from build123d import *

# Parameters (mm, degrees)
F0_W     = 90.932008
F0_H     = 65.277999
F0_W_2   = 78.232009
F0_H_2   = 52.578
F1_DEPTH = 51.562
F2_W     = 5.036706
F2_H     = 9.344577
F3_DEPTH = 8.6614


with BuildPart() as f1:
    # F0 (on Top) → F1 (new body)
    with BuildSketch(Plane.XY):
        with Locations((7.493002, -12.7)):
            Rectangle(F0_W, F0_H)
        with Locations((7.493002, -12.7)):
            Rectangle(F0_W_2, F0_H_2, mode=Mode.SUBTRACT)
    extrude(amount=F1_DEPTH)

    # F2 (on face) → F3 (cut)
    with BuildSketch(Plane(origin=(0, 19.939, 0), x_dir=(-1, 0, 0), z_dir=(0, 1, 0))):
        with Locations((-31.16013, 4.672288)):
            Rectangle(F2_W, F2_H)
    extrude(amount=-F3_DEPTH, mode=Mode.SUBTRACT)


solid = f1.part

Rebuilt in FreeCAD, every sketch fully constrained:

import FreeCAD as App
import Part
import Sketcher
Q = App.Units.Quantity

doc = App.newDocument("Part")
body = doc.addObject("PartDesign::Body", "Body")

# Sketch on XY plane
sketch1 = body.newObject("Sketcher::SketchObject", "Sketch")
sketch1.AttachmentSupport = (doc.getObject("XY_Plane"), [""])
sketch1.MapMode = "FlatFace"
sketch1.addGeometry(Part.LineSegment(App.Vector(-38, 20, 0), App.Vector(-38, -45, 0)), False)
sketch1.addGeometry(Part.LineSegment(App.Vector(-38, -45, 0), App.Vector(53, -45, 0)), False)
sketch1.addGeometry(Part.LineSegment(App.Vector(53, -45, 0), App.Vector(53, 20, 0)), False)
sketch1.addGeometry(Part.LineSegment(App.Vector(53, 20, 0), App.Vector(-38, 20, 0)), False)
sketch1.addGeometry(Part.LineSegment(App.Vector(47, -39, 0), App.Vector(-32, -39, 0)), False)
sketch1.addGeometry(Part.LineSegment(App.Vector(-32, -39, 0), App.Vector(-32, 14, 0)), False)
sketch1.addGeometry(Part.LineSegment(App.Vector(-32, 14, 0), App.Vector(47, 14, 0)), False)
sketch1.addGeometry(Part.LineSegment(App.Vector(47, 14, 0), App.Vector(47, -39, 0)), False)
sketch1.addConstraint(Sketcher.Constraint("Coincident", 0, 2, 1, 1))
sketch1.addConstraint(Sketcher.Constraint("Coincident", 1, 2, 2, 1))
sketch1.addConstraint(Sketcher.Constraint("Coincident", 2, 2, 3, 1))
sketch1.addConstraint(Sketcher.Constraint("Coincident", 3, 2, 0, 1))
sketch1.addConstraint(Sketcher.Constraint("Coincident", 4, 2, 5, 1))
sketch1.addConstraint(Sketcher.Constraint("Coincident", 5, 2, 6, 1))
sketch1.addConstraint(Sketcher.Constraint("Coincident", 6, 2, 7, 1))
sketch1.addConstraint(Sketcher.Constraint("Coincident", 7, 2, 4, 1))
sketch1.addConstraint(Sketcher.Constraint("Vertical", 0))
sketch1.addConstraint(Sketcher.Constraint("Horizontal", 1))
sketch1.addConstraint(Sketcher.Constraint("Vertical", 2))
sketch1.addConstraint(Sketcher.Constraint("Horizontal", 3))
sketch1.addConstraint(Sketcher.Constraint("Horizontal", 4))
sketch1.addConstraint(Sketcher.Constraint("Vertical", 5))
sketch1.addConstraint(Sketcher.Constraint("Horizontal", 6))
sketch1.addConstraint(Sketcher.Constraint("Vertical", 7))
sketch1.addConstraint(Sketcher.Constraint("DistanceY", 0, 2, 0, 1, Q("2.57 in")))
sketch1.addConstraint(Sketcher.Constraint("DistanceY", 5, 1, 5, 2, Q("2.07 in")))
sketch1.addConstraint(Sketcher.Constraint("DistanceX", 0, 2, 4, 2, Q("0.25 in")))
sketch1.addConstraint(Sketcher.Constraint("DistanceY", 0, 2, 4, 2, Q("0.25 in")))
sketch1.addConstraint(Sketcher.Constraint("DistanceX", 6, 2, 2, 2, Q("0.25 in")))
sketch1.addConstraint(Sketcher.Constraint("DistanceX", 0, 2, -1, 1, Q("1.4950001 in")))
sketch1.addConstraint(Sketcher.Constraint("DistanceY", 0, 2, -1, 1, Q("1.785 in")))
sketch1.addConstraint(Sketcher.Constraint("DistanceX", 4, 2, 4, 1, 78.232009))
pad1 = body.newObject("PartDesign::Pad", "Pad")
pad1.Profile = sketch1
pad1.Length = Q("2.03 in")

# Sketch on XZ plane
sketch2 = body.newObject("Sketcher::SketchObject", "Sketch001")
sketch2.AttachmentSupport = (doc.getObject("XZ_Plane"), [""])
sketch2.MapMode = "FlatFace"
sketch2.AttachmentOffset = App.Placement(App.Vector(0, 0, -0.785 * 25.4), App.Rotation())
sketch2.addGeometry(Part.LineSegment(App.Vector(34, 9, 0), App.Vector(34, 0, 0)), False)
sketch2.addGeometry(Part.LineSegment(App.Vector(34, 0, 0), App.Vector(29, 0, 0)), False)
sketch2.addGeometry(Part.LineSegment(App.Vector(29, 0, 0), App.Vector(29, 9, 0)), False)
sketch2.addGeometry(Part.LineSegment(App.Vector(29, 9, 0), App.Vector(34, 9, 0)), False)
sketch2.addConstraint(Sketcher.Constraint("Coincident", 0, 2, 1, 1))
sketch2.addConstraint(Sketcher.Constraint("Coincident", 1, 2, 2, 1))
sketch2.addConstraint(Sketcher.Constraint("Coincident", 2, 2, 3, 1))
sketch2.addConstraint(Sketcher.Constraint("Coincident", 3, 2, 0, 1))
sketch2.addConstraint(Sketcher.Constraint("Vertical", 0))
sketch2.addConstraint(Sketcher.Constraint("Horizontal", 1))
sketch2.addConstraint(Sketcher.Constraint("Vertical", 2))
sketch2.addConstraint(Sketcher.Constraint("Horizontal", 3))
sketch2.addConstraint(Sketcher.Constraint("PointOnObject", 0, 2, -1))
sketch2.addConstraint(Sketcher.Constraint("DistanceX", 1, 2, 1, 1, 5.036706))
sketch2.addConstraint(Sketcher.Constraint("DistanceY", 0, 2, 0, 1, 9.344577))
sketch2.addConstraint(Sketcher.Constraint("DistanceX", -1, 1, 0, 2, 33.678483))
pocket1 = body.newObject("PartDesign::Pocket", "Pocket")
pocket1.Profile = sketch2
pocket1.Length = Q("0.341 in")
pocket1.Reversed = True

doc.recompute()
